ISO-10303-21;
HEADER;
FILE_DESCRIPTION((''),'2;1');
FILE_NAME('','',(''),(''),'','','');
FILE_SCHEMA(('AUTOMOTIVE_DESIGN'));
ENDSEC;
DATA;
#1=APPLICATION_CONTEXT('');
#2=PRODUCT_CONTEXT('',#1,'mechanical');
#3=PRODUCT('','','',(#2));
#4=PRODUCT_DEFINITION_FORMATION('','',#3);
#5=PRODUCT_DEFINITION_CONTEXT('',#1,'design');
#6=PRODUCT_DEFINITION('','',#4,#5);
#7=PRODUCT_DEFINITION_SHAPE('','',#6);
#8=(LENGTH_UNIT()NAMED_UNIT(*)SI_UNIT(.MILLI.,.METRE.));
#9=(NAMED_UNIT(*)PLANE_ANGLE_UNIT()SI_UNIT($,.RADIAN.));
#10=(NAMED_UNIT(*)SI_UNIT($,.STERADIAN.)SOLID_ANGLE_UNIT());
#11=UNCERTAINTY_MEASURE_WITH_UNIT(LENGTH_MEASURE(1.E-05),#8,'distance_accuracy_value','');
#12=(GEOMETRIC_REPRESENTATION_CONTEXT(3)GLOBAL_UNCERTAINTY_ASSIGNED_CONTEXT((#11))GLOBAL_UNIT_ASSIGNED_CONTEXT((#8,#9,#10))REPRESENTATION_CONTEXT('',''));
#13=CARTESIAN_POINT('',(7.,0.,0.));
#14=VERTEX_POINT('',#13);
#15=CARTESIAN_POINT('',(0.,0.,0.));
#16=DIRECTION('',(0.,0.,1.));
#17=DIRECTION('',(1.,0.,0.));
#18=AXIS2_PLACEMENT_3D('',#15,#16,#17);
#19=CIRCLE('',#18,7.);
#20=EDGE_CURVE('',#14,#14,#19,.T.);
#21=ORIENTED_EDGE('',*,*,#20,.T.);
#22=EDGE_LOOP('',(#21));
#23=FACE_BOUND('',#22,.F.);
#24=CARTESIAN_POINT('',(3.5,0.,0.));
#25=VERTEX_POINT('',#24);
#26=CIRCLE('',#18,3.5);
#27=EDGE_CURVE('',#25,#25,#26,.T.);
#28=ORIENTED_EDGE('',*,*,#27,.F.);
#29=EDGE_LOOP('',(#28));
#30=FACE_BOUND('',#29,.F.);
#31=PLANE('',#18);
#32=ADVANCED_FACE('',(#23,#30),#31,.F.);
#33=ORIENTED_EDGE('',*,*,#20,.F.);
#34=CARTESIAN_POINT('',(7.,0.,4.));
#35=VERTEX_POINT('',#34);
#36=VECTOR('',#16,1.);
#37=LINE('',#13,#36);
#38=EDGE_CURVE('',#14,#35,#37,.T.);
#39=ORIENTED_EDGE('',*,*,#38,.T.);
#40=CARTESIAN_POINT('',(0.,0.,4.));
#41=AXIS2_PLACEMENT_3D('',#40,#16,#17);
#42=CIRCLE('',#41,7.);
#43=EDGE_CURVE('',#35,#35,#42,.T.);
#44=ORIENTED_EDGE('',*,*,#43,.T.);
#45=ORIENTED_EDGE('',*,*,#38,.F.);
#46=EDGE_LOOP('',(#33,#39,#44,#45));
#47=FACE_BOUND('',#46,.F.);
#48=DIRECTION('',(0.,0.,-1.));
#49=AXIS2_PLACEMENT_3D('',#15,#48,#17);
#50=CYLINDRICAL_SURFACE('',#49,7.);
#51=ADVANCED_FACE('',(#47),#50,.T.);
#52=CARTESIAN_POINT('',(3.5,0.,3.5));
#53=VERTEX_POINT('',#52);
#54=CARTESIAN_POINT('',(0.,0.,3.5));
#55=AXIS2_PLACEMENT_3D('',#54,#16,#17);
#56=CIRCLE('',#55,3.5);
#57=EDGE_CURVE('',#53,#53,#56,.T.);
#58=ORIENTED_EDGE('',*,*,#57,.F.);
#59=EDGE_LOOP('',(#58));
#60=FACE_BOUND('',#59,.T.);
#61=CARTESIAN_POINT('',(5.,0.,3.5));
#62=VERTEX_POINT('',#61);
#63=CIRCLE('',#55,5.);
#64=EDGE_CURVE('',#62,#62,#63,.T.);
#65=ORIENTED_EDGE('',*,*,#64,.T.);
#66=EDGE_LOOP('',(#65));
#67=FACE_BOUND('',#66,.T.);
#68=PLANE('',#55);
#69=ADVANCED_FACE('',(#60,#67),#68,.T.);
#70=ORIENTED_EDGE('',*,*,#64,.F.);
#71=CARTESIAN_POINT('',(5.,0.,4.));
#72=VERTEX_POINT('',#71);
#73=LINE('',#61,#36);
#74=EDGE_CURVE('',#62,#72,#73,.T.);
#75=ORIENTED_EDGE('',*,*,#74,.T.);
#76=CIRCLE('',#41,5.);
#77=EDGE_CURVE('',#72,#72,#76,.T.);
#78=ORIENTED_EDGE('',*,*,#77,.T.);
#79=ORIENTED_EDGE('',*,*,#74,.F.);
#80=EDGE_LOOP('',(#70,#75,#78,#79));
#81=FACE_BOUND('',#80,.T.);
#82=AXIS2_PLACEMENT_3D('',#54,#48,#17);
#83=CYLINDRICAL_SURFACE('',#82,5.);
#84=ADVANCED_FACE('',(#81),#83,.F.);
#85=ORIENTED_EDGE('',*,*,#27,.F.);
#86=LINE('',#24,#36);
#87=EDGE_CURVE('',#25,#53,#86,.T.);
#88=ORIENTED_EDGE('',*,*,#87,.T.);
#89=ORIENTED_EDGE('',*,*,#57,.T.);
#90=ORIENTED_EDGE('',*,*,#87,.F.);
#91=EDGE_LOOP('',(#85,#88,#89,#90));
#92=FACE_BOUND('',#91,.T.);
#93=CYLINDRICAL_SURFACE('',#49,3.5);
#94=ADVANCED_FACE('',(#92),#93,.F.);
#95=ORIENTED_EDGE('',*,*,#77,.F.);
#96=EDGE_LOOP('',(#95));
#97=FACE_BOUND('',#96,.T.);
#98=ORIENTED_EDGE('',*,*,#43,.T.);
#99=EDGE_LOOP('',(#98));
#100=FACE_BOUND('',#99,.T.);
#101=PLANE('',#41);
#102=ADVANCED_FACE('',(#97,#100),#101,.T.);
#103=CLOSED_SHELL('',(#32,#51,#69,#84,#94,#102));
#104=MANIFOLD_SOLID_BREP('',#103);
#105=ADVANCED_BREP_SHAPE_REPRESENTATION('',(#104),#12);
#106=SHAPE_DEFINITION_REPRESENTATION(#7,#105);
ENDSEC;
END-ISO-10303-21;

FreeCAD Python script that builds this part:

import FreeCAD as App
import Part
import Sketcher

V = App.Vector

doc = App.newDocument("Part")
body = doc.addObject("PartDesign::Body", "Body")

# Sketch on XY plane
sketch1 = body.newObject("Sketcher::SketchObject", "Sketch")
sketch1.AttachmentSupport = (doc.getObject("XY_Plane"), [""])
sketch1.MapMode = "FlatFace"
sketch1.addGeometry([
    Part.Circle(V(0, 0, 0), V(0, 0, 1), 7),
    Part.Circle(V(0, 0, 0), V(0, 0, 1), 3.5),
], False)
sketch1.addConstraint([
    Sketcher.Constraint("Coincident", 0, 3, -1, 1),
    Sketcher.Constraint("Coincident", 1, 3, -1, 1),
    Sketcher.Constraint("Diameter", 0, 14.0),
    Sketcher.Constraint("Diameter", 1, 7.0),
])
pad1 = body.newObject("PartDesign::Pad", "Pad")
pad1.Profile = sketch1
pad1.Length = 4

# Sketch on XY plane
sketch2 = body.newObject("Sketcher::SketchObject", "Sketch001")
sketch2.AttachmentSupport = (doc.getObject("XY_Plane"), [""])
sketch2.MapMode = "FlatFace"
sketch2.AttachmentOffset = App.Placement(V(0, 0, 3.5), App.Rotation())
sketch2.addGeometry([
    Part.Circle(V(0, 0, 0), V(0, 0, 1), 5),
    Part.Circle(V(0, 0, 0), V(0, 0, 1), 3.5),
], False)
sketch2.addConstraint([
    Sketcher.Constraint("Coincident", 0, 3, -1, 1),
    Sketcher.Constraint("Coincident", 1, 3, -1, 1),
    Sketcher.Constraint("Diameter", 0, 10.0),
    Sketcher.Constraint("Diameter", 1, 7.0),
])
pocket1 = body.newObject("PartDesign::Pocket", "Pocket")
pocket1.Profile = sketch2
pocket1.Length = 0.5
pocket1.Reversed = True

doc.recompute()
